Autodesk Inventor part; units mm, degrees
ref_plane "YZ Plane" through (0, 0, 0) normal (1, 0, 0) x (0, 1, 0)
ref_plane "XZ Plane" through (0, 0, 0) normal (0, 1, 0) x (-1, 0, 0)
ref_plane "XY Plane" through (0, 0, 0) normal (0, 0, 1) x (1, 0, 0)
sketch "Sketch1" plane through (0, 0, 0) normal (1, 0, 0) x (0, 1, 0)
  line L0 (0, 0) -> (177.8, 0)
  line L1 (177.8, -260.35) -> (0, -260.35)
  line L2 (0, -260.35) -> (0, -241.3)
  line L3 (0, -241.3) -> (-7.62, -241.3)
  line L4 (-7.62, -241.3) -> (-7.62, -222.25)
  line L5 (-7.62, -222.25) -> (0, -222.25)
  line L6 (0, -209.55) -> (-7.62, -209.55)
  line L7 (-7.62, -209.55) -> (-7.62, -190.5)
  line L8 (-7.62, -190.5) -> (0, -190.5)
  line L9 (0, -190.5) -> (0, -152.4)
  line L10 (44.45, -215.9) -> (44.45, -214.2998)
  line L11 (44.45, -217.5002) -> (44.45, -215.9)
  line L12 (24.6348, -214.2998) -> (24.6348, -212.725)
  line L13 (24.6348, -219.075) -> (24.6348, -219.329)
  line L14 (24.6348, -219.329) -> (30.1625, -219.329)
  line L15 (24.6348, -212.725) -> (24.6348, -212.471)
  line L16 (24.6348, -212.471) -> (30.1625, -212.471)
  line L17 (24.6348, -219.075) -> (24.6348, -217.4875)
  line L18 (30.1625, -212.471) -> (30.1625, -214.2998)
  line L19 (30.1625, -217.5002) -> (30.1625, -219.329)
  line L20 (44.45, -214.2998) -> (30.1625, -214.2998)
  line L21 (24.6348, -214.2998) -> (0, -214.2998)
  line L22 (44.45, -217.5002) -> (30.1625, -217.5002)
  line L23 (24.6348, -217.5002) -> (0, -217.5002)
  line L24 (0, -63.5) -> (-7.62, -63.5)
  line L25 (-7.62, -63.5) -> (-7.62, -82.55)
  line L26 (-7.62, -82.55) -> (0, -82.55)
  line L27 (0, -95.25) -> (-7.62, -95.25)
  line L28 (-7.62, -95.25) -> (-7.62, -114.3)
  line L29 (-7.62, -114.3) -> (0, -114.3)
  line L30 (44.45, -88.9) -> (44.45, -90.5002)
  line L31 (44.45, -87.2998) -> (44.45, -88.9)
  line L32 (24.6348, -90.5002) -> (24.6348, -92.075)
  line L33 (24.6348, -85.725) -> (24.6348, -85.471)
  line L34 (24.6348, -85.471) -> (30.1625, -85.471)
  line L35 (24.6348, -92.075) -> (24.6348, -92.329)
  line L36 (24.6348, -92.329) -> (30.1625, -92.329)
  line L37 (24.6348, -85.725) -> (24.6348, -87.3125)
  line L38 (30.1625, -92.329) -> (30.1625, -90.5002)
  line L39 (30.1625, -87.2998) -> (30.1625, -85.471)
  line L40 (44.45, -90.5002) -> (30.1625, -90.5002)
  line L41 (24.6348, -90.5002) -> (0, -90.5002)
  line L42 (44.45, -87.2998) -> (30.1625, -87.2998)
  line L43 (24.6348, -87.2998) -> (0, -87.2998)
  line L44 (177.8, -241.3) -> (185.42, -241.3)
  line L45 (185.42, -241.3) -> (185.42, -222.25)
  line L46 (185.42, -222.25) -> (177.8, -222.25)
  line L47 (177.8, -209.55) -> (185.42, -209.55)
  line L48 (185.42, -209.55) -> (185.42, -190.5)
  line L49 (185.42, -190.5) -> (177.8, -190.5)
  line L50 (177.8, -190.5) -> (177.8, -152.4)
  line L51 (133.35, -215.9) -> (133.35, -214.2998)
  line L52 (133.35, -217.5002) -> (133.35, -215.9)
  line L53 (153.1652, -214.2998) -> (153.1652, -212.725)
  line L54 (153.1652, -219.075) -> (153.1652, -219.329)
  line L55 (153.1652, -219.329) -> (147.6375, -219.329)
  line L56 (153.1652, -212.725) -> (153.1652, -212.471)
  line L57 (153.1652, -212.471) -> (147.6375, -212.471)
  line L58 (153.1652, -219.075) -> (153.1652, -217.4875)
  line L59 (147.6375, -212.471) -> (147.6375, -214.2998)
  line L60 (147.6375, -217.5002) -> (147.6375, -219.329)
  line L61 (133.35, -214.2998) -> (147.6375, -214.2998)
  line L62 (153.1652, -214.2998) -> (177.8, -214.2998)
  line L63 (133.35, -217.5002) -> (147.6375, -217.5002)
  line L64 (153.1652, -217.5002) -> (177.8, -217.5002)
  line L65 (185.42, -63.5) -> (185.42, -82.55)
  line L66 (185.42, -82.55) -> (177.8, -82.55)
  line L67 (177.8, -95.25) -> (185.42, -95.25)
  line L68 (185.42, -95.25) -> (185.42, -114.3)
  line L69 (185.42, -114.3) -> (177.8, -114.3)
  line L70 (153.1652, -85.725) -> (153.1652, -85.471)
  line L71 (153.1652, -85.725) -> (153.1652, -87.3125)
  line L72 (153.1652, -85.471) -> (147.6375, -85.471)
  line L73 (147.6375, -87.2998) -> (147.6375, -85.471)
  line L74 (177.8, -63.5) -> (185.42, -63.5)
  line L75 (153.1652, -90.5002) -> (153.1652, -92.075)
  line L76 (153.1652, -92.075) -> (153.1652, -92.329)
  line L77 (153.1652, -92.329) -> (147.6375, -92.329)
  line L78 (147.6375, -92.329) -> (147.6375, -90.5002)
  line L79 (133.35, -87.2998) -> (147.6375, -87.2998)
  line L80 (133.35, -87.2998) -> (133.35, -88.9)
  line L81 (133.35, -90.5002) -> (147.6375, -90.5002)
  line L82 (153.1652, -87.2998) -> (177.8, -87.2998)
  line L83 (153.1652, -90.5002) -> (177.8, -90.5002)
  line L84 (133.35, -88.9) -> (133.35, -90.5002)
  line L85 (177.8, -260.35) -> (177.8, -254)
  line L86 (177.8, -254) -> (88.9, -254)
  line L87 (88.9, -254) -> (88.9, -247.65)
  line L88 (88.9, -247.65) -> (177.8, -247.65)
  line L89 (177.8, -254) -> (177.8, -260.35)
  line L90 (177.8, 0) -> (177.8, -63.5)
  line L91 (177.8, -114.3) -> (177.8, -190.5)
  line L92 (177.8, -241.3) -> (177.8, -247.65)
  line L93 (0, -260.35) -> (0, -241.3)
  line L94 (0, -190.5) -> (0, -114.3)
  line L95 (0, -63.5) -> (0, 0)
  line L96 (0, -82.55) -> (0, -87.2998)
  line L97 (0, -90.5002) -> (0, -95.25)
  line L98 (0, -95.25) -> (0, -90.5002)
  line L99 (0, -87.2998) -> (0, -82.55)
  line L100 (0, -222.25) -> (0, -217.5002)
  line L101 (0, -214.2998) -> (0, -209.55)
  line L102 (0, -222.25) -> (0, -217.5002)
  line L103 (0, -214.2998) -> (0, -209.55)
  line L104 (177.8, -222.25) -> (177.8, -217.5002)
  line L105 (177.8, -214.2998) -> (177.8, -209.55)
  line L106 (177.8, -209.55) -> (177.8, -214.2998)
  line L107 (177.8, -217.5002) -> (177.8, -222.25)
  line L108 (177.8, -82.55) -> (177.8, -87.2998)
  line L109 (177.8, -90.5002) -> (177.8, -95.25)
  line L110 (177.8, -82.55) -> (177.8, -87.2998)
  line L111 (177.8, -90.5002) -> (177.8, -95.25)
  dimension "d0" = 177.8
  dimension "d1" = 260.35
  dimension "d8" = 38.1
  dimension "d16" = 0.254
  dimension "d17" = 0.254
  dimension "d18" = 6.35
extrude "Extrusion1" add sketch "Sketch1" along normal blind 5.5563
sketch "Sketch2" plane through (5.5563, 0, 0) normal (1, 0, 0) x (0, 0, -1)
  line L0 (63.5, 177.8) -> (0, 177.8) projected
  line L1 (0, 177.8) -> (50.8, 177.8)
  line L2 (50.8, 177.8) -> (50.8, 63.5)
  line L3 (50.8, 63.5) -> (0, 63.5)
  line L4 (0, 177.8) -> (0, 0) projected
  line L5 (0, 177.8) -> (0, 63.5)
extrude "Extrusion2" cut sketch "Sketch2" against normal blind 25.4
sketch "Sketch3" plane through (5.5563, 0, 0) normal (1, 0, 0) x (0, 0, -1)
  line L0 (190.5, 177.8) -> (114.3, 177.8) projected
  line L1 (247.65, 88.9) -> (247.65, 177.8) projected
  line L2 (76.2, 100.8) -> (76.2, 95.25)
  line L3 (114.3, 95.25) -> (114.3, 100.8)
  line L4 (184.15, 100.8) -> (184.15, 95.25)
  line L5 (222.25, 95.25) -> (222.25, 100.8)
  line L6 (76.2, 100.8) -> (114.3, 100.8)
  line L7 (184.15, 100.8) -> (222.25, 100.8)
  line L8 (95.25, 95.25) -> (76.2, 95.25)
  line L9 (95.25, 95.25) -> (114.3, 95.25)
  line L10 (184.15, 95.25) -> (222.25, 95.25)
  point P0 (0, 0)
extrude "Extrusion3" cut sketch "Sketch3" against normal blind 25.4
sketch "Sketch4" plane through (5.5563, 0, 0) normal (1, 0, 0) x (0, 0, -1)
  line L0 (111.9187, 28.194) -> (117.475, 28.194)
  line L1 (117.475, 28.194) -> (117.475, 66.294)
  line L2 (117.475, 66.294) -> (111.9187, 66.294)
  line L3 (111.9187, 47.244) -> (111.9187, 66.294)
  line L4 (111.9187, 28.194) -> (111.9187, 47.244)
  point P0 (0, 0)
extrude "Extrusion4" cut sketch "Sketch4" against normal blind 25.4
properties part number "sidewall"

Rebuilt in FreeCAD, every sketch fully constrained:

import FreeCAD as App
import Part
import Sketcher

V = App.Vector
Q = App.Units.Quantity


def add_polygon(sketch, points):
    """Adds a closed chain of lines whose ends are joined by coincident constraints."""
    first, n = sketch.GeometryCount, len(points)
    for a, b in zip(points, points[1:] + points[:1]):
        sketch.addGeometry(Part.LineSegment(App.Vector(*a, 0), App.Vector(*b, 0)), False)
    for i in range(n):
        sketch.addConstraint(Sketcher.Constraint("Coincident", first + i, 2, first + (i + 1) % n, 1))

doc = App.newDocument("Part")
body = doc.addObject("PartDesign::Body", "Body")

# Sketch on YZ plane
sketch1 = doc.addObject("Sketcher::SketchObject", "Sketch")
body.addObject(sketch1)
sketch1.AttachmentSupport = (doc.YZ_Plane, [""])
sketch1.MapMode = "FlatFace"
add_polygon(sketch1, [(177.8, 0), (0, 0), (0, -63.5), (-7.62, -63.5), (-7.62, -82.55), (0, -82.55), (0, -87.2998), (24.6348, -87.2998), (24.6348, -85.471), (30.1625, -85.471), (30.1625, -87.2998), (44.45, -87.2998), (44.45, -90.5002), (30.1625, -90.5002), (30.1625, -92.329), (24.6348, -92.329), (24.6348, -90.5002), (0, -90.5002), (0, -95.25), (-7.62, -95.25), (-7.62, -114.3), (0, -114.3), (0, -190.5), (-7.62, -190.5), (-7.62, -209.55), (0, -209.55), (0, -214.2998), (24.6348, -214.2998), (24.6348, -212.471), (30.1625, -212.471), (30.1625, -214.2998), (44.45, -214.2998), (44.45, -217.5002), (30.1625, -217.5002), (30.1625, -219.329), (24.6348, -219.329), (24.6348, -217.5002), (0, -217.5002), (0, -222.25), (-7.62, -222.25), (-7.62, -241.3), (0, -241.3), (0, -260.35), (177.8, -260.35), (177.8, -254), (88.9, -254), (88.9, -247.65), (177.8, -247.65), (177.8, -241.3), (185.42, -241.3), (185.42, -222.25), (177.8, -222.25), (177.8, -217.5002), (153.1652, -217.5002), (153.1652, -219.329), (147.6375, -219.329), (147.6375, -217.5002), (133.35, -217.5002), (133.35, -214.2998), (147.6375, -214.2998), (147.6375, -212.471), (153.1652, -212.471), (153.1652, -214.2998), (177.8, -214.2998), (177.8, -209.55), (185.42, -209.55), (185.42, -190.5), (177.8, -190.5), (177.8, -114.3), (185.42, -114.3), (185.42, -95.25), (177.8, -95.25), (177.8, -90.5002), (153.1652, -90.5002), (153.1652, -92.329), (147.6375, -92.329), (147.6375, -90.5002), (133.35, -90.5002), (133.35, -87.2998), (147.6375, -87.2998), (147.6375, -85.471), (153.1652, -85.471), (153.1652, -87.2998), (177.8, -87.2998), (177.8, -82.55), (185.42, -82.55), (185.42, -63.5), (177.8, -63.5)])  # lines 0-87
sketch1.addConstraint(Sketcher.Constraint("Horizontal", 0))
sketch1.addConstraint(Sketcher.Constraint("Vertical", 1))
sketch1.addConstraint(Sketcher.Constraint("Horizontal", 2))
sketch1.addConstraint(Sketcher.Constraint("Vertical", 3))
sketch1.addConstraint(Sketcher.Constraint("Horizontal", 4))
sketch1.addConstraint(Sketcher.Constraint("Vertical", 5))
sketch1.addConstraint(Sketcher.Constraint("Horizontal", 6))
sketch1.addConstraint(Sketcher.Constraint("Vertical", 7))
sketch1.addConstraint(Sketcher.Constraint("Horizontal", 8))
sketch1.addConstraint(Sketcher.Constraint("Vertical", 9))
sketch1.addConstraint(Sketcher.Constraint("Horizontal", 10))
sketch1.addConstraint(Sketcher.Constraint("Vertical", 11))
sketch1.addConstraint(Sketcher.Constraint("Horizontal", 12))
sketch1.addConstraint(Sketcher.Constraint("Vertical", 13))
sketch1.addConstraint(Sketcher.Constraint("Horizontal", 14))
sketch1.addConstraint(Sketcher.Constraint("Vertical", 15))
sketch1.addConstraint(Sketcher.Constraint("Horizontal", 16))
sketch1.addConstraint(Sketcher.Constraint("Vertical", 17))
sketch1.addConstraint(Sketcher.Constraint("Horizontal", 18))
sketch1.addConstraint(Sketcher.Constraint("Vertical", 19))
sketch1.addConstraint(Sketcher.Constraint("Horizontal", 20))
sketch1.addConstraint(Sketcher.Constraint("Vertical", 21))
sketch1.addConstraint(Sketcher.Constraint("Horizontal", 22))
sketch1.addConstraint(Sketcher.Constraint("Vertical", 23))
sketch1.addConstraint(Sketcher.Constraint("Horizontal", 24))
sketch1.addConstraint(Sketcher.Constraint("Vertical", 25))
sketch1.addConstraint(Sketcher.Constraint("Horizontal", 26))
sketch1.addConstraint(Sketcher.Constraint("Vertical", 27))
sketch1.addConstraint(Sketcher.Constraint("Horizontal", 28))
sketch1.addConstraint(Sketcher.Constraint("Vertical", 29))
sketch1.addConstraint(Sketcher.Constraint("Horizontal", 30))
sketch1.addConstraint(Sketcher.Constraint("Vertical", 31))
sketch1.addConstraint(Sketcher.Constraint("Horizontal", 32))
sketch1.addConstraint(Sketcher.Constraint("Vertical", 33))
sketch1.addConstraint(Sketcher.Constraint("Horizontal", 34))
sketch1.addConstraint(Sketcher.Constraint("Vertical", 35))
sketch1.addConstraint(Sketcher.Constraint("Horizontal", 36))
sketch1.addConstraint(Sketcher.Constraint("Vertical", 37))
sketch1.addConstraint(Sketcher.Constraint("Horizontal", 38))
sketch1.addConstraint(Sketcher.Constraint("Vertical", 39))
sketch1.addConstraint(Sketcher.Constraint("Horizontal", 40))
sketch1.addConstraint(Sketcher.Constraint("Vertical", 41))
sketch1.addConstraint(Sketcher.Constraint("Horizontal", 42))
sketch1.addConstraint(Sketcher.Constraint("Vertical", 43))
sketch1.addConstraint(Sketcher.Constraint("Horizontal", 44))
sketch1.addConstraint(Sketcher.Constraint("Vertical", 45))
sketch1.addConstraint(Sketcher.Constraint("Horizontal", 46))
sketch1.addConstraint(Sketcher.Constraint("Vertical", 47))
sketch1.addConstraint(Sketcher.Constraint("Horizontal", 48))
sketch1.addConstraint(Sketcher.Constraint("Vertical", 49))
sketch1.addConstraint(Sketcher.Constraint("Horizontal", 50))
sketch1.addConstraint(Sketcher.Constraint("Vertical", 51))
sketch1.addConstraint(Sketcher.Constraint("Horizontal", 52))
sketch1.addConstraint(Sketcher.Constraint("Vertical", 53))
sketch1.addConstraint(Sketcher.Constraint("Horizontal", 54))
sketch1.addConstraint(Sketcher.Constraint("Vertical", 55))
sketch1.addConstraint(Sketcher.Constraint("Horizontal", 56))
sketch1.addConstraint(Sketcher.Constraint("Vertical", 57))
sketch1.addConstraint(Sketcher.Constraint("Horizontal", 58))
sketch1.addConstraint(Sketcher.Constraint("Vertical", 59))
sketch1.addConstraint(Sketcher.Constraint("Horizontal", 60))
sketch1.addConstraint(Sketcher.Constraint("Vertical", 61))
sketch1.addConstraint(Sketcher.Constraint("Horizontal", 62))
sketch1.addConstraint(Sketcher.Constraint("Vertical", 63))
sketch1.addConstraint(Sketcher.Constraint("Horizontal", 64))
sketch1.addConstraint(Sketcher.Constraint("Vertical", 65))
sketch1.addConstraint(Sketcher.Constraint("Horizontal", 66))
sketch1.addConstraint(Sketcher.Constraint("Vertical", 67))
sketch1.addConstraint(Sketcher.Constraint("Horizontal", 68))
sketch1.addConstraint(Sketcher.Constraint("Vertical", 69))
sketch1.addConstraint(Sketcher.Constraint("Horizontal", 70))
sketch1.addConstraint(Sketcher.Constraint("Vertical", 71))
sketch1.addConstraint(Sketcher.Constraint("Horizontal", 72))
sketch1.addConstraint(Sketcher.Constraint("Vertical", 73))
sketch1.addConstraint(Sketcher.Constraint("Horizontal", 74))
sketch1.addConstraint(Sketcher.Constraint("Vertical", 75))
sketch1.addConstraint(Sketcher.Constraint("Horizontal", 76))
sketch1.addConstraint(Sketcher.Constraint("Vertical", 77))
sketch1.addConstraint(Sketcher.Constraint("Horizontal", 78))
sketch1.addConstraint(Sketcher.Constraint("Vertical", 79))
sketch1.addConstraint(Sketcher.Constraint("Horizontal", 80))
sketch1.addConstraint(Sketcher.Constraint("Vertical", 81))
sketch1.addConstraint(Sketcher.Constraint("Horizontal", 82))
sketch1.addConstraint(Sketcher.Constraint("Vertical", 83))
sketch1.addConstraint(Sketcher.Constraint("Horizontal", 84))
sketch1.addConstraint(Sketcher.Constraint("Vertical", 85))
sketch1.addConstraint(Sketcher.Constraint("Horizontal", 86))
sketch1.addConstraint(Sketcher.Constraint("Vertical", 87))
sketch1.addConstraint(Sketcher.Constraint("Coincident", 0, 2, -1, 1))
sketch1.addConstraint(Sketcher.Constraint("PointOnObject", 4, 2, -2))
sketch1.addConstraint(Sketcher.Constraint("PointOnObject", 16, 2, -2))
sketch1.addConstraint(Sketcher.Constraint("PointOnObject", 20, 2, -2))
sketch1.addConstraint(Sketcher.Constraint("PointOnObject", 24, 2, -2))
sketch1.addConstraint(Sketcher.Constraint("PointOnObject", 36, 2, -2))
sketch1.addConstraint(Sketcher.Constraint("PointOnObject", 40, 2, -2))
sketch1.addConstraint(Sketcher.Constraint("Horizontal", 6, 2, 9, 2))
sketch1.addConstraint(Sketcher.Constraint("Horizontal", 12, 2, 15, 2))
sketch1.addConstraint(Sketcher.Constraint("Horizontal", 26, 2, 29, 2))
sketch1.addConstraint(Sketcher.Constraint("Horizontal", 32, 2, 35, 2))
sketch1.addConstraint(Sketcher.Constraint("Horizontal", 40, 2, 47, 2))
sketch1.addConstraint(Sketcher.Constraint("Horizontal", 38, 2, 49, 2))
sketch1.addConstraint(Sketcher.Constraint("Horizontal", 36, 2, 51, 2))
sketch1.addConstraint(Sketcher.Constraint("Horizontal", 34, 2, 53, 2))
sketch1.addConstraint(Sketcher.Constraint("Horizontal", 52, 2, 55, 2))
sketch1.addConstraint(Sketcher.Constraint("Horizontal", 30, 2, 57, 2))
sketch1.addConstraint(Sketcher.Constraint("Horizontal", 28, 2, 59, 2))
sketch1.addConstraint(Sketcher.Constraint("Horizontal", 58, 2, 61, 2))
sketch1.addConstraint(Sketcher.Constraint("Horizontal", 24, 2, 63, 2))
sketch1.addConstraint(Sketcher.Constraint("Horizontal", 22, 2, 65, 2))
sketch1.addConstraint(Sketcher.Constraint("Horizontal", 20, 2, 67, 2))
sketch1.addConstraint(Sketcher.Constraint("Horizontal", 18, 2, 69, 2))
sketch1.addConstraint(Sketcher.Constraint("Horizontal", 16, 2, 71, 2))
sketch1.addConstraint(Sketcher.Constraint("Horizontal", 14, 2, 73, 2))
sketch1.addConstraint(Sketcher.Constraint("Horizontal", 72, 2, 75, 2))
sketch1.addConstraint(Sketcher.Constraint("Horizontal", 10, 2, 77, 2))
sketch1.addConstraint(Sketcher.Constraint("Horizontal", 8, 2, 79, 2))
sketch1.addConstraint(Sketcher.Constraint("Horizontal", 78, 2, 81, 2))
sketch1.addConstraint(Sketcher.Constraint("Horizontal", 4, 2, 83, 2))
sketch1.addConstraint(Sketcher.Constraint("Horizontal", 2, 2, 85, 2))
sketch1.addConstraint(Sketcher.Constraint("Vertical", 9, 2, 12, 2))
sketch1.addConstraint(Sketcher.Constraint("Vertical", 7, 2, 14, 2))
sketch1.addConstraint(Sketcher.Constraint("Vertical", 3, 2, 18, 2))
sketch1.addConstraint(Sketcher.Constraint("Vertical", 19, 2, 22, 2))
sketch1.addConstraint(Sketcher.Constraint("Vertical", 15, 2, 26, 2))
sketch1.addConstraint(Sketcher.Constraint("Vertical", 13, 2, 28, 2))
sketch1.addConstraint(Sketcher.Constraint("Vertical", 11, 2, 30, 2))
sketch1.addConstraint(Sketcher.Constraint("Vertical", 29, 2, 32, 2))
sketch1.addConstraint(Sketcher.Constraint("Vertical", 27, 2, 34, 2))
sketch1.addConstraint(Sketcher.Constraint("Vertical", 23, 2, 38, 2))
sketch1.addConstraint(Sketcher.Constraint("Vertical", 43, 2, 46, 2))
sketch1.addConstraint(Sketcher.Constraint("Vertical", 47, 2, 50, 2))
sketch1.addConstraint(Sketcher.Constraint("Vertical", 55, 2, 58, 2))
sketch1.addConstraint(Sketcher.Constraint("Vertical", 53, 2, 60, 2))
sketch1.addConstraint(Sketcher.Constraint("Vertical", 51, 2, 62, 2))
sketch1.addConstraint(Sketcher.Constraint("Vertical", 49, 2, 64, 2))
sketch1.addConstraint(Sketcher.Constraint("Vertical", 63, 2, 66, 2))
sketch1.addConstraint(Sketcher.Constraint("Vertical", 65, 2, 68, 2))
sketch1.addConstraint(Sketcher.Constraint("Vertical", 67, 2, 70, 2))
sketch1.addConstraint(Sketcher.Constraint("Vertical", 61, 2, 72, 2))
sketch1.addConstraint(Sketcher.Constraint("Vertical", 59, 2, 74, 2))
sketch1.addConstraint(Sketcher.Constraint("Vertical", 57, 2, 76, 2))
sketch1.addConstraint(Sketcher.Constraint("Vertical", 75, 2, 78, 2))
sketch1.addConstraint(Sketcher.Constraint("Vertical", 73, 2, 80, 2))
sketch1.addConstraint(Sketcher.Constraint("Vertical", 71, 2, 82, 2))
sketch1.addConstraint(Sketcher.Constraint("Vertical", 69, 2, 84, 2))
sketch1.addConstraint(Sketcher.Constraint("Vertical", 83, 2, 86, 2))
sketch1.addConstraint(Sketcher.Constraint("Equal", 40, 48))
sketch1.addConstraint(Sketcher.Constraint("Equal", 36, 52))
sketch1.addConstraint(Sketcher.Constraint("Equal", 34, 54))
sketch1.addConstraint(Sketcher.Constraint("Equal", 32, 56))
sketch1.addConstraint(Sketcher.Constraint("Equal", 9, 13))
sketch1.addConstraint(Sketcher.Constraint("Equal", 5, 17))
sketch1.addConstraint(Sketcher.Constraint("Equal", 3, 19))
sketch1.addConstraint(Sketcher.Constraint("Equal", 19, 23))
sketch1.addConstraint(Sketcher.Constraint("Equal", 17, 25))
sketch1.addConstraint(Sketcher.Constraint("Equal", 15, 27))
sketch1.addConstraint(Sketcher.Constraint("Equal", 11, 31))
sketch1.addConstraint(Sketcher.Constraint("Equal", 29, 33))
sketch1.addConstraint(Sketcher.Constraint("Equal", 25, 37))
sketch1.addConstraint(Sketcher.Constraint("Equal", 23, 39))
sketch1.addConstraint(Sketcher.Constraint("Equal", 39, 41))
sketch1.addConstraint(Sketcher.Constraint("Equal", 43, 45))
sketch1.addConstraint(Sketcher.Constraint("Equal", 45, 47))
sketch1.addConstraint(Sketcher.Constraint("DistanceX", 0, 2, 0, 1, Q("7 in")))
sketch1.addConstraint(Sketcher.Constraint("DistanceY", 43, 1, 43, 2, Q("0.25 in")))
sketch1.addConstraint(Sketcher.Constraint("DistanceY", 21, 2, 21, 1, Q("3 in")))
sketch1.addConstraint(Sketcher.Constraint("DistanceY", 41, 2, -1, 1, Q("10.25 in")))
sketch1.addConstraint(Sketcher.Constraint("DistanceX", 2, 2, 2, 1, Q("0.3 in")))
sketch1.addConstraint(Sketcher.Constraint("DistanceX", 44, 2, 44, 1, Q("3.5 in")))
sketch1.addConstraint(Sketcher.Constraint("DistanceY", 1, 2, 1, 1, Q("2.5 in")))
sketch1.addConstraint(Sketcher.Constraint("DistanceX", 10, 1, 10, 2, Q("0.5625 in")))
sketch1.addConstraint(Sketcher.Constraint("DistanceY", 5, 2, 5, 1, Q("0.187 in")))
sketch1.addConstraint(Sketcher.Constraint("DistanceY", 7, 1, 7, 2, Q("0.072 in")))
sketch1.addConstraint(Sketcher.Constraint("DistanceX", -1, 1, 10, 2, Q("1.75 in")))
sketch1.addConstraint(Sketcher.Constraint("DistanceX", 6, 1, 6, 2, Q("24.6348 mm")))
pad1 = doc.addObject("PartDesign::Pad", "Pad")
body.addObject(pad1)
pad1.Profile = sketch1
pad1.Length = Q("0.218752 in")

# Sketch on YZ plane
sketch2 = doc.addObject("Sketcher::SketchObject", "Sketch001")
body.addObject(sketch2)
sketch2.AttachmentSupport = (doc.YZ_Plane, [""])
sketch2.MapMode = "FlatFace"
sketch2.AttachmentOffset = App.Placement(V(0, 0, 0.218752 * 25.4), App.Rotation())
add_polygon(sketch2, [(63.5, -50.8), (177.8, -50.8), (177.8, 0), (63.5, 0)])  # lines 0-3
sketch2.addConstraint(Sketcher.Constraint("Horizontal", 0))
sketch2.addConstraint(Sketcher.Constraint("Vertical", 1))
sketch2.addConstraint(Sketcher.Constraint("Horizontal", 2))
sketch2.addConstraint(Sketcher.Constraint("Vertical", 3))
sketch2.addConstraint(Sketcher.Constraint("PointOnObject", 1, 2, -1))
sketch2.addConstraint(Sketcher.Constraint("DistanceY", 1, 1, 1, 2, Q("2 in")))
sketch2.addConstraint(Sketcher.Constraint("DistanceX", 0, 1, 0, 2, Q("4.5 in")))
sketch2.addConstraint(Sketcher.Constraint("DistanceX", -1, 1, 0, 2, Q("7 in")))
pocket1 = doc.addObject("PartDesign::Pocket", "Pocket")
body.addObject(pocket1)
pocket1.Profile = sketch2
pocket1.Length = Q("1 in")

# Sketch on YZ plane
sketch3 = doc.addObject("Sketcher::SketchObject", "Sketch002")
body.addObject(sketch3)
sketch3.AttachmentSupport = (doc.YZ_Plane, [""])
sketch3.MapMode = "FlatFace"
sketch3.AttachmentOffset = App.Placement(V(0, 0, 0.218752 * 25.4), App.Rotation())
add_polygon(sketch3, [(100.8, -114.3), (100.8, -76.2), (95.25, -76.2), (95.25, -114.3)])  # lines 0-3
add_polygon(sketch3, [(100.8, -222.25), (100.8, -184.15), (95.25, -184.15), (95.25, -222.25)])  # lines 4-7
sketch3.addConstraint(Sketcher.Constraint("Vertical", 0))
sketch3.addConstraint(Sketcher.Constraint("Horizontal", 1))
sketch3.addConstraint(Sketcher.Constraint("Vertical", 2))
sketch3.addConstraint(Sketcher.Constraint("Horizontal", 3))
sketch3.addConstraint(Sketcher.Constraint("Vertical", 4))
sketch3.addConstraint(Sketcher.Constraint("Horizontal", 5))
sketch3.addConstraint(Sketcher.Constraint("Vertical", 6))
sketch3.addConstraint(Sketcher.Constraint("Horizontal", 7))
sketch3.addConstraint(Sketcher.Constraint("Vertical", 3, 2, 4, 2))
sketch3.addConstraint(Sketcher.Constraint("Vertical", 2, 2, 5, 2))
sketch3.addConstraint(Sketcher.Constraint("Equal", 2, 4))
sketch3.addConstraint(Sketcher.Constraint("DistanceY", 0, 1, 0, 2, Q("1.5 in")))
sketch3.addConstraint(Sketcher.Constraint("DistanceY", 0, 2, -1, 1, Q("3 in")))
sketch3.addConstraint(Sketcher.Constraint("DistanceX", -1, 1, 1, 2, Q("3.75 in")))
sketch3.addConstraint(Sketcher.Constraint("DistanceY", 4, 2, -1, 1, Q("7.25 in")))
sketch3.addConstraint(Sketcher.Constraint("DistanceX", 1, 2, 1, 1, Q("0.2185 in")))
pocket2 = doc.addObject("PartDesign::Pocket", "Pocket001")
body.addObject(pocket2)
pocket2.Profile = sketch3
pocket2.Length = Q("1 in")

# Sketch on YZ plane
sketch4 = doc.addObject("Sketcher::SketchObject", "Sketch003")
body.addObject(sketch4)
sketch4.AttachmentSupport = (doc.YZ_Plane, [""])
sketch4.MapMode = "FlatFace"
sketch4.AttachmentOffset = App.Placement(V(0, 0, 0.218752 * 25.4), App.Rotation())
add_polygon(sketch4, [(66.294, -111.9187), (28.194, -111.9187), (28.194, -117.475), (66.294, -117.475)])  # lines 0-3
sketch4.addConstraint(Sketcher.Constraint("Horizontal", 0))
sketch4.addConstraint(Sketcher.Constraint("Vertical", 1))
sketch4.addConstraint(Sketcher.Constraint("Horizontal", 2))
sketch4.addConstraint(Sketcher.Constraint("Vertical", 3))
sketch4.addConstraint(Sketcher.Constraint("DistanceX", 0, 2, 0, 1, Q("1.5 in")))
sketch4.addConstraint(Sketcher.Constraint("DistanceY", 1, 2, 1, 1, Q("0.218752 in")))
sketch4.addConstraint(Sketcher.Constraint("DistanceX", -1, 1, 0, 2, Q("1.11 in")))
sketch4.addConstraint(Sketcher.Constraint("DistanceY", 0, 2, -1, 1, Q("4.406248 in")))
pocket3 = doc.addObject("PartDesign::Pocket", "Pocket002")
body.addObject(pocket3)
pocket3.Profile = sketch4
pocket3.Length = Q("1 in")

doc.recompute()
